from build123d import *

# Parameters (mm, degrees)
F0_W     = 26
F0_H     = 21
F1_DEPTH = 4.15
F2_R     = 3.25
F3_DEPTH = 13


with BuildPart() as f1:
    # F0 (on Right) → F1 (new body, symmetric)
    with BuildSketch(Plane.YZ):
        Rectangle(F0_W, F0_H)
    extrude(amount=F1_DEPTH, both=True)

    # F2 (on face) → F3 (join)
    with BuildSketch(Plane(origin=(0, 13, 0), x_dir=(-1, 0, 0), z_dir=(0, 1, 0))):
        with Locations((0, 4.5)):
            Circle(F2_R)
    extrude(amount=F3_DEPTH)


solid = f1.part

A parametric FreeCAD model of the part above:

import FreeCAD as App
import Part
import Sketcher


def add_polygon(sketch, points):
    """Adds a closed chain of lines whose ends are joined by coincident constraints."""
    first, n = sketch.GeometryCount, len(points)
    for a, b in zip(points, points[1:] + points[:1]):
        sketch.addGeometry(Part.LineSegment(App.Vector(*a, 0), App.Vector(*b, 0)), False)
    for i in range(n):
        sketch.addConstraint(Sketcher.Constraint("Coincident", first + i, 2, first + (i + 1) % n, 1))

doc = App.newDocument("Part")
body = doc.addObject("PartDesign::Body", "Body")

# Sketch on YZ plane
sketch1 = body.newObject("Sketcher::SketchObject", "Sketch")
sketch1.AttachmentSupport = (doc.getObject("YZ_Plane"), [""])
sketch1.MapMode = "FlatFace"
add_polygon(sketch1, [(-13, 10.5), (-13, -10.5), (13, -10.5), (13, 10.5)])  # lines 0-3
sketch1.addConstraint([
    Sketcher.Constraint("Vertical", 0),
    Sketcher.Constraint("Horizontal", 1),
    Sketcher.Constraint("Vertical", 2),
    Sketcher.Constraint("Horizontal", 3),
    Sketcher.Constraint("Symmetric", 0, 2, 2, 2, -1, 1),
    Sketcher.Constraint("DistanceX", 1, 1, 1, 2, 26.0),
    Sketcher.Constraint("DistanceY", 0, 2, 0, 1, 21.0),
])
pad1 = body.newObject("PartDesign::Pad", "Pad")
pad1.Profile = sketch1
pad1.Length = 8.3
pad1.Midplane = True

# Sketch on XZ plane
sketch2 = body.newObject("Sketcher::SketchObject", "Sketch001")
sketch2.AttachmentSupport = (doc.getObject("XZ_Plane"), [""])
sketch2.MapMode = "FlatFace"
sketch2.AttachmentOffset = App.Placement(App.Vector(0, 0, -13), App.Rotation())
sketch2.addGeometry(Part.Circle(App.Vector(0, 4.5, 0), App.Vector(0, 0, 1), 3.25), False)
sketch2.addConstraint([
    Sketcher.Constraint("PointOnObject", 0, 3, -2),
    Sketcher.Constraint("Diameter", 0, 6.5),
    Sketcher.Constraint("DistanceY", -1, 1, 0, 3, 4.5),
])
pad2 = body.newObject("PartDesign::Pad", "Pad001")
pad2.Profile = sketch2
pad2.Length = 13
pad2.Reversed = True

doc.recompute()
